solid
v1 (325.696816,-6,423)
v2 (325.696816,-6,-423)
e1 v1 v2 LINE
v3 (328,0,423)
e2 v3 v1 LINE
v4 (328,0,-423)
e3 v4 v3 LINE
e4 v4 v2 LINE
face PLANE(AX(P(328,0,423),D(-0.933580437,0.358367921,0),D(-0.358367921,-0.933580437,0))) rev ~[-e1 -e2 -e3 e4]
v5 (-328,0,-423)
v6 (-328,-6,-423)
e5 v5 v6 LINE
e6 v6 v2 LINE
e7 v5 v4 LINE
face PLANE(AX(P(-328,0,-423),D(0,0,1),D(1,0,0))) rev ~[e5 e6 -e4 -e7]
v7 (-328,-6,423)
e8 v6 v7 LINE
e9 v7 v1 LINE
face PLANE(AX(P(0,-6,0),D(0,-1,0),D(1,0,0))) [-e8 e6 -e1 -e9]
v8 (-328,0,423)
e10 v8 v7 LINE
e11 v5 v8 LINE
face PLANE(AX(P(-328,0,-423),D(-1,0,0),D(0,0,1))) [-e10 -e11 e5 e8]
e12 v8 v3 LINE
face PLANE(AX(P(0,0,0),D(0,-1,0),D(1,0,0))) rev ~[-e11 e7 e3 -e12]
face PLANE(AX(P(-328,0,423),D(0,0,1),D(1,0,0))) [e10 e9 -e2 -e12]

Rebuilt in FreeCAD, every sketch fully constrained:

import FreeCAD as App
import Part
import Sketcher

V = App.Vector
Q = App.Units.Quantity


def add_polygon(sketch, points):
    """Adds a closed chain of lines whose ends are joined by coincident constraints."""
    first, n = sketch.GeometryCount, len(points)
    for a, b in zip(points, points[1:] + points[:1]):
        sketch.addGeometry(Part.LineSegment(App.Vector(*a, 0), App.Vector(*b, 0)), False)
    for i in range(n):
        sketch.addConstraint(Sketcher.Constraint("Coincident", first + i, 2, first + (i + 1) % n, 1))

doc = App.newDocument("Part")
body = doc.addObject("PartDesign::Body", "Body")

# Sketch on XZ plane
sketch1 = body.newObject("Sketcher::SketchObject", "Sketch")
sketch1.AttachmentSupport = (doc.getObject("XZ_Plane"), [""])
sketch1.MapMode = "FlatFace"
add_polygon(sketch1, [(-328, 423), (-328, -423), (328, -423), (328, 423)])  # lines 0-3
sketch1.addConstraint(Sketcher.Constraint("Vertical", 0))
sketch1.addConstraint(Sketcher.Constraint("Horizontal", 1))
sketch1.addConstraint(Sketcher.Constraint("Vertical", 2))
sketch1.addConstraint(Sketcher.Constraint("Horizontal", 3))
sketch1.addConstraint(Sketcher.Constraint("Symmetric", 0, 2, 2, 2, -1, 1))
sketch1.addConstraint(Sketcher.Constraint("DistanceX", 1, 1, 1, 2, 656.0))
sketch1.addConstraint(Sketcher.Constraint("DistanceY", 0, 2, 0, 1, 846.0))
pad1 = body.newObject("PartDesign::Pad", "Pad")
pad1.Profile = sketch1
pad1.Length = 6

# Sketch on XY plane
sketch2 = body.newObject("Sketcher::SketchObject", "Sketch001")
sketch2.AttachmentSupport = (doc.getObject("XY_Plane"), [""])
sketch2.MapMode = "FlatFace"
sketch2.AttachmentOffset = App.Placement(V(0, 0, 423), App.Rotation())
add_polygon(sketch2, [(325.7, -6), (328, -6), (328, 0)])  # lines 0-2
sketch2.addConstraint(Sketcher.Constraint("Horizontal", 0))
sketch2.addConstraint(Sketcher.Constraint("Vertical", 1))
sketch2.addConstraint(Sketcher.Constraint("PointOnObject", 1, 2, -1))
sketch2.addConstraint(Sketcher.Constraint("DistanceY", 1, 1, 1, 2, 6.0))
sketch2.addConstraint(Sketcher.Constraint("Angle", 2, Q("-110.999998 deg")))
sketch2.addConstraint(Sketcher.Constraint("DistanceX", -1, 1, 0, 2, 328.0))
pocket1 = body.newObject("PartDesign::Pocket", "Pocket")
pocket1.Profile = sketch2
pocket1.Length = 870

doc.recompute()
